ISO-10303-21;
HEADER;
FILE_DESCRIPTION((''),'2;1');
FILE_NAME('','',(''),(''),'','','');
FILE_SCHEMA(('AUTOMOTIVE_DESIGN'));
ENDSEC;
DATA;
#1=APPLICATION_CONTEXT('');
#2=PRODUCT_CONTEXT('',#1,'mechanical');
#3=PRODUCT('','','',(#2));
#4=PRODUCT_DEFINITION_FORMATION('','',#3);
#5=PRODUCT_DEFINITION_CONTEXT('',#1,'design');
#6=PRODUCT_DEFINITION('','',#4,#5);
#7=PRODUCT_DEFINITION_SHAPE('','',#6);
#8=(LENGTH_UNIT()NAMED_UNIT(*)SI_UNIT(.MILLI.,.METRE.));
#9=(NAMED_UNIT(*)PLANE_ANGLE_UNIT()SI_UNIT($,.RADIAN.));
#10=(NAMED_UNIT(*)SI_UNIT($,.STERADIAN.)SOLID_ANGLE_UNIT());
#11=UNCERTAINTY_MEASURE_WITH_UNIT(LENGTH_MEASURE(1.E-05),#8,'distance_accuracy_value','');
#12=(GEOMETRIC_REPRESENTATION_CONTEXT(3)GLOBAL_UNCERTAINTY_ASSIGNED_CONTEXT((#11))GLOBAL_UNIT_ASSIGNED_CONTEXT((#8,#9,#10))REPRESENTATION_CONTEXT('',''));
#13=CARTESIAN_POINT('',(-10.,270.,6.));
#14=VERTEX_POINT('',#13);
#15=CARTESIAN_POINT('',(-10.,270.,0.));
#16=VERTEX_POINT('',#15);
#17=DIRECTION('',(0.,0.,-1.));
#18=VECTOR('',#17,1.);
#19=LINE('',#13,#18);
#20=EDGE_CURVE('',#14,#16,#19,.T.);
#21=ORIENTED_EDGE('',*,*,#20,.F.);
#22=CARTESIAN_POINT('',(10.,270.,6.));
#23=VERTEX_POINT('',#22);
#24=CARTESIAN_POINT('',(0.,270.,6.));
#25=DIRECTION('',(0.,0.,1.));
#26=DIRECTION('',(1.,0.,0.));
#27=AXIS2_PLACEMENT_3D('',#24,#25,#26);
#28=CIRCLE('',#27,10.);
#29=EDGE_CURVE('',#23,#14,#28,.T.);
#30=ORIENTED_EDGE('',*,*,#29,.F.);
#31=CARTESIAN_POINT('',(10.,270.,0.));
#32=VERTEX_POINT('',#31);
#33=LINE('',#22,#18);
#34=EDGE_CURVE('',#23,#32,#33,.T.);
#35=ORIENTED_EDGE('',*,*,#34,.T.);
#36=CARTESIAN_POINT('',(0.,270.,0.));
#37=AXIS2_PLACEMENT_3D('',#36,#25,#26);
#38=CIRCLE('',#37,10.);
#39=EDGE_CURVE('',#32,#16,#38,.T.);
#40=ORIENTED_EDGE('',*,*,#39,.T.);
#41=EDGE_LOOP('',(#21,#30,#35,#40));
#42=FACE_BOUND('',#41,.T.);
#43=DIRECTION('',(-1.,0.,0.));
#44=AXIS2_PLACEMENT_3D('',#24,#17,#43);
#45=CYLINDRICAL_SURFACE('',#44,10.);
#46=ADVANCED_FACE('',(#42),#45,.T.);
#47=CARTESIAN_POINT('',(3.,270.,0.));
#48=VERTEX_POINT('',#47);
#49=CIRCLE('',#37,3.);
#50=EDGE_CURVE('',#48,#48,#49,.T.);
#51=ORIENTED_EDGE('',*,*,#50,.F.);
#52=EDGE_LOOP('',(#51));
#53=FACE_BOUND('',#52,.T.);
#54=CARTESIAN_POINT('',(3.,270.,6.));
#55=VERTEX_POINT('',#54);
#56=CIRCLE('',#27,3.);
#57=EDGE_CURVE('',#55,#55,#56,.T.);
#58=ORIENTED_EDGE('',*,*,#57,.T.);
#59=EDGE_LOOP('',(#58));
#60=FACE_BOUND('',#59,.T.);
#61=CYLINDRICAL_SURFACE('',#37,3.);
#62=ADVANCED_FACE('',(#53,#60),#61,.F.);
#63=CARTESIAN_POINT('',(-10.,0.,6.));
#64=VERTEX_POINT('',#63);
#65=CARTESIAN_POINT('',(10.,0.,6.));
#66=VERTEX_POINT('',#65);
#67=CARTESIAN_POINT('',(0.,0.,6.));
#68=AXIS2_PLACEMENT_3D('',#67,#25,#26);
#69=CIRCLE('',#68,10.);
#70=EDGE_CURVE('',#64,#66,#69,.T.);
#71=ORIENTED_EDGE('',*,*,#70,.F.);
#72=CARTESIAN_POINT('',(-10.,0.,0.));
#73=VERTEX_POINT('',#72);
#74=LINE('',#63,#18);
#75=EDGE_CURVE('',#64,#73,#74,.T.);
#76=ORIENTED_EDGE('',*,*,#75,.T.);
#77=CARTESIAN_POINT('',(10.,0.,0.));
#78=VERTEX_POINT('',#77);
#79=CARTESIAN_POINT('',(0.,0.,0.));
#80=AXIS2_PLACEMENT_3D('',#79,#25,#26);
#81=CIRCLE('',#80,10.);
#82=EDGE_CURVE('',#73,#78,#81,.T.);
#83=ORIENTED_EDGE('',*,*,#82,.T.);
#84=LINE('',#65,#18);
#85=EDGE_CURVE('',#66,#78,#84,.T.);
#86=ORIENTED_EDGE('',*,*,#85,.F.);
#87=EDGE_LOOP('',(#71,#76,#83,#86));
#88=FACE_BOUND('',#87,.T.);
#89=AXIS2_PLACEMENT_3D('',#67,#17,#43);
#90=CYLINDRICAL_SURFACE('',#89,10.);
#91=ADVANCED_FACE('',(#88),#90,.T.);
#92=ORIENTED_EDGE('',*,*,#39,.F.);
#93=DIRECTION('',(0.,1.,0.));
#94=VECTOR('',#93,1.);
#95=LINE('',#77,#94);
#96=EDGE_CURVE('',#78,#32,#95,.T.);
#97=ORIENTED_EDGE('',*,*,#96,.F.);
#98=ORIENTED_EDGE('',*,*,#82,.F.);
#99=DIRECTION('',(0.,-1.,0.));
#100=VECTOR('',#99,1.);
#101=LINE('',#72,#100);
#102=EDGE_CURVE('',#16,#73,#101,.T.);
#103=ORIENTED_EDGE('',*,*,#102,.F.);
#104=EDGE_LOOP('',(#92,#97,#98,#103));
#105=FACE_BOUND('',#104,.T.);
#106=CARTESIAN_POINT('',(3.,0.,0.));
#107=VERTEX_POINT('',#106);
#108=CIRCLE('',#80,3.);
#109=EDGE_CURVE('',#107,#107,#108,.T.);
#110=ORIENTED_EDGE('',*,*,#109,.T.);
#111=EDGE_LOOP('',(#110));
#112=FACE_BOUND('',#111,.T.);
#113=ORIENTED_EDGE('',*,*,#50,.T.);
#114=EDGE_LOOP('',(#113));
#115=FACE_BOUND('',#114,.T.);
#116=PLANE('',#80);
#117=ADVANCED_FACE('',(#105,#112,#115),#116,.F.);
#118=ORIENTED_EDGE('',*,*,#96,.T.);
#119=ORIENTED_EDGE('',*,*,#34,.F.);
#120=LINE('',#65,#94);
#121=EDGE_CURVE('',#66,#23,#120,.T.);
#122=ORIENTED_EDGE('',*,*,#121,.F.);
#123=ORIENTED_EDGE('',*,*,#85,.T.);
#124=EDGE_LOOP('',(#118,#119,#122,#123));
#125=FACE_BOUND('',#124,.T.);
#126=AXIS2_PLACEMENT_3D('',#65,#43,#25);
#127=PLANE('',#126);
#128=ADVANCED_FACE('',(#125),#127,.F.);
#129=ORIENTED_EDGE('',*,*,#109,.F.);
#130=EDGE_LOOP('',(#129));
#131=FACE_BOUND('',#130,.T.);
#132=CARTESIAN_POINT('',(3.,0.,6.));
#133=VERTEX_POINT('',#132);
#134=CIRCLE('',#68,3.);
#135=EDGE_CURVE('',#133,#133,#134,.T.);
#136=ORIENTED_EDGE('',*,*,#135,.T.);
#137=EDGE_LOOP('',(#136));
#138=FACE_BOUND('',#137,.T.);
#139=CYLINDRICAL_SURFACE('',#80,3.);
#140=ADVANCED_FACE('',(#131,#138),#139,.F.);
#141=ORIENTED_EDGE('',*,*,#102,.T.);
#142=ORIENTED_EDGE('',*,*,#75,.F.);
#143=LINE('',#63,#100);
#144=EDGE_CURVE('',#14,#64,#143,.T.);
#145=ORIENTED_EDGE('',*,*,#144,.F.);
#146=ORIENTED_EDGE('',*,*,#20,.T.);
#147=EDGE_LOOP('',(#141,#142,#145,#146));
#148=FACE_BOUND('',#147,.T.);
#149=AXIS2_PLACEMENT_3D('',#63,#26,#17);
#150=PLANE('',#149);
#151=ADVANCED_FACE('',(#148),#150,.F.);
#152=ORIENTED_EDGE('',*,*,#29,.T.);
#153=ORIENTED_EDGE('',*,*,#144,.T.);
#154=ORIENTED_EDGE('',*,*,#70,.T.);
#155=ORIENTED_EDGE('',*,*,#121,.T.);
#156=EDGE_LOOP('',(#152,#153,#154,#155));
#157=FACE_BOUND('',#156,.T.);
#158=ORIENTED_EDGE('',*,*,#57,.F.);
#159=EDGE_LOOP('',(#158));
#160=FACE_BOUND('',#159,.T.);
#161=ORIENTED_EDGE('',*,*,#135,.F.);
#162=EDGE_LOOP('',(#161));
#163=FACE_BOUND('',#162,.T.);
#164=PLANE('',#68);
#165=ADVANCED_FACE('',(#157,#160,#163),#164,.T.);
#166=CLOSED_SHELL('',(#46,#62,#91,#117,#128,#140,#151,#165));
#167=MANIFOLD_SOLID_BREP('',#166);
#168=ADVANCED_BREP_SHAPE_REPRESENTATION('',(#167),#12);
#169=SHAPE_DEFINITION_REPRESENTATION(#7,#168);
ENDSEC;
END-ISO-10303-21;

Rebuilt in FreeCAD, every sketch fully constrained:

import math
import FreeCAD as App
import Part
import Sketcher

V = App.Vector
Q = App.Units.Quantity

doc = App.newDocument("Part")
params = doc.addObject("Spreadsheet::Sheet", "Params")
for row, (alias, value) in enumerate([
    ("sketch1_radius", "10 mm"),
    ("sketch1_height", "270 mm"),
    ("pad1_length", "6 mm"),
    ("sketch2_diameter", "6 mm"),
], start=1):
    params.set(f"A{row}", alias)
    params.set(f"B{row}", "=" + value)
    params.setAlias(f"B{row}", alias)

body = doc.addObject("PartDesign::Body", "Body")

# Sketch on XY plane
sketch1 = doc.addObject("Sketcher::SketchObject", "Sketch")
body.addObject(sketch1)
sketch1.AttachmentSupport = (doc.XY_Plane, [""])
sketch1.MapMode = "FlatFace"
sketch1.addGeometry([
    Part.LineSegment(V(-10, 270, 0), V(-10, 0, 0)),
    Part.ArcOfCircle(Part.Circle(V(0, 0, 0), V(0, 0, 1), 10), math.radians(180), math.radians(360)),
    Part.LineSegment(V(10, 0, 0), V(10, 270, 0)),
    Part.ArcOfCircle(Part.Circle(V(0, 270, 0), V(0, 0, 1), 10), math.radians(0), math.radians(180)),
], False)
sketch1.addConstraint([
    Sketcher.Constraint("Tangent", 0, 2, 1, 1),
    Sketcher.Constraint("Tangent", 1, 2, 2, 1),
    Sketcher.Constraint("Tangent", 2, 2, 3, 1),
    Sketcher.Constraint("Tangent", 3, 2, 0, 1),
    Sketcher.Constraint("Vertical", 0),
    Sketcher.Constraint("Vertical", 2),
    Sketcher.Constraint("Coincident", 1, 3, -1, 1),
    Sketcher.Constraint("Radius", 1, Q("10 mm")),
    Sketcher.Constraint("DistanceY", 0, 2, 0, 1, Q("270 mm")),
])
sketch1.setExpression("Constraints[7]", "Params.sketch1_radius")
sketch1.setExpression("Constraints[8]", "Params.sketch1_height")
pad1 = doc.addObject("PartDesign::Pad", "Pad")
body.addObject(pad1)
pad1.Profile = sketch1
pad1.setExpression("Length", "Params.pad1_length")

# Sketch on XY plane
sketch2 = doc.addObject("Sketcher::SketchObject", "Sketch001")
body.addObject(sketch2)
sketch2.AttachmentSupport = (doc.XY_Plane, [""])
sketch2.MapMode = "FlatFace"
sketch2.AttachmentOffset = App.Placement(V(0, 0, 6), App.Rotation())
sketch2.addGeometry([
    Part.Circle(V(0, 270, 0), V(0, 0, 1), 3),
    Part.Circle(V(0, 0, 0), V(0, 0, 1), 3),
], False)
sketch2.addConstraint([
    Sketcher.Constraint("Coincident", 1, 3, -1, 1),
    Sketcher.Constraint("Equal", 0, 1),
    Sketcher.Constraint("PointOnObject", 0, 3, -2),
    Sketcher.Constraint("Diameter", 0, Q("6 mm")),
    Sketcher.Constraint("DistanceY", -1, 1, 0, 3, Q("270 mm")),
])
sketch2.setExpression("Constraints[3]", "Params.sketch2_diameter")
pocket1 = doc.addObject("PartDesign::Pocket", "Pocket")
body.addObject(pocket1)
pocket1.Profile = sketch2
pocket1.Type = "ThroughAll"

doc.recompute()
